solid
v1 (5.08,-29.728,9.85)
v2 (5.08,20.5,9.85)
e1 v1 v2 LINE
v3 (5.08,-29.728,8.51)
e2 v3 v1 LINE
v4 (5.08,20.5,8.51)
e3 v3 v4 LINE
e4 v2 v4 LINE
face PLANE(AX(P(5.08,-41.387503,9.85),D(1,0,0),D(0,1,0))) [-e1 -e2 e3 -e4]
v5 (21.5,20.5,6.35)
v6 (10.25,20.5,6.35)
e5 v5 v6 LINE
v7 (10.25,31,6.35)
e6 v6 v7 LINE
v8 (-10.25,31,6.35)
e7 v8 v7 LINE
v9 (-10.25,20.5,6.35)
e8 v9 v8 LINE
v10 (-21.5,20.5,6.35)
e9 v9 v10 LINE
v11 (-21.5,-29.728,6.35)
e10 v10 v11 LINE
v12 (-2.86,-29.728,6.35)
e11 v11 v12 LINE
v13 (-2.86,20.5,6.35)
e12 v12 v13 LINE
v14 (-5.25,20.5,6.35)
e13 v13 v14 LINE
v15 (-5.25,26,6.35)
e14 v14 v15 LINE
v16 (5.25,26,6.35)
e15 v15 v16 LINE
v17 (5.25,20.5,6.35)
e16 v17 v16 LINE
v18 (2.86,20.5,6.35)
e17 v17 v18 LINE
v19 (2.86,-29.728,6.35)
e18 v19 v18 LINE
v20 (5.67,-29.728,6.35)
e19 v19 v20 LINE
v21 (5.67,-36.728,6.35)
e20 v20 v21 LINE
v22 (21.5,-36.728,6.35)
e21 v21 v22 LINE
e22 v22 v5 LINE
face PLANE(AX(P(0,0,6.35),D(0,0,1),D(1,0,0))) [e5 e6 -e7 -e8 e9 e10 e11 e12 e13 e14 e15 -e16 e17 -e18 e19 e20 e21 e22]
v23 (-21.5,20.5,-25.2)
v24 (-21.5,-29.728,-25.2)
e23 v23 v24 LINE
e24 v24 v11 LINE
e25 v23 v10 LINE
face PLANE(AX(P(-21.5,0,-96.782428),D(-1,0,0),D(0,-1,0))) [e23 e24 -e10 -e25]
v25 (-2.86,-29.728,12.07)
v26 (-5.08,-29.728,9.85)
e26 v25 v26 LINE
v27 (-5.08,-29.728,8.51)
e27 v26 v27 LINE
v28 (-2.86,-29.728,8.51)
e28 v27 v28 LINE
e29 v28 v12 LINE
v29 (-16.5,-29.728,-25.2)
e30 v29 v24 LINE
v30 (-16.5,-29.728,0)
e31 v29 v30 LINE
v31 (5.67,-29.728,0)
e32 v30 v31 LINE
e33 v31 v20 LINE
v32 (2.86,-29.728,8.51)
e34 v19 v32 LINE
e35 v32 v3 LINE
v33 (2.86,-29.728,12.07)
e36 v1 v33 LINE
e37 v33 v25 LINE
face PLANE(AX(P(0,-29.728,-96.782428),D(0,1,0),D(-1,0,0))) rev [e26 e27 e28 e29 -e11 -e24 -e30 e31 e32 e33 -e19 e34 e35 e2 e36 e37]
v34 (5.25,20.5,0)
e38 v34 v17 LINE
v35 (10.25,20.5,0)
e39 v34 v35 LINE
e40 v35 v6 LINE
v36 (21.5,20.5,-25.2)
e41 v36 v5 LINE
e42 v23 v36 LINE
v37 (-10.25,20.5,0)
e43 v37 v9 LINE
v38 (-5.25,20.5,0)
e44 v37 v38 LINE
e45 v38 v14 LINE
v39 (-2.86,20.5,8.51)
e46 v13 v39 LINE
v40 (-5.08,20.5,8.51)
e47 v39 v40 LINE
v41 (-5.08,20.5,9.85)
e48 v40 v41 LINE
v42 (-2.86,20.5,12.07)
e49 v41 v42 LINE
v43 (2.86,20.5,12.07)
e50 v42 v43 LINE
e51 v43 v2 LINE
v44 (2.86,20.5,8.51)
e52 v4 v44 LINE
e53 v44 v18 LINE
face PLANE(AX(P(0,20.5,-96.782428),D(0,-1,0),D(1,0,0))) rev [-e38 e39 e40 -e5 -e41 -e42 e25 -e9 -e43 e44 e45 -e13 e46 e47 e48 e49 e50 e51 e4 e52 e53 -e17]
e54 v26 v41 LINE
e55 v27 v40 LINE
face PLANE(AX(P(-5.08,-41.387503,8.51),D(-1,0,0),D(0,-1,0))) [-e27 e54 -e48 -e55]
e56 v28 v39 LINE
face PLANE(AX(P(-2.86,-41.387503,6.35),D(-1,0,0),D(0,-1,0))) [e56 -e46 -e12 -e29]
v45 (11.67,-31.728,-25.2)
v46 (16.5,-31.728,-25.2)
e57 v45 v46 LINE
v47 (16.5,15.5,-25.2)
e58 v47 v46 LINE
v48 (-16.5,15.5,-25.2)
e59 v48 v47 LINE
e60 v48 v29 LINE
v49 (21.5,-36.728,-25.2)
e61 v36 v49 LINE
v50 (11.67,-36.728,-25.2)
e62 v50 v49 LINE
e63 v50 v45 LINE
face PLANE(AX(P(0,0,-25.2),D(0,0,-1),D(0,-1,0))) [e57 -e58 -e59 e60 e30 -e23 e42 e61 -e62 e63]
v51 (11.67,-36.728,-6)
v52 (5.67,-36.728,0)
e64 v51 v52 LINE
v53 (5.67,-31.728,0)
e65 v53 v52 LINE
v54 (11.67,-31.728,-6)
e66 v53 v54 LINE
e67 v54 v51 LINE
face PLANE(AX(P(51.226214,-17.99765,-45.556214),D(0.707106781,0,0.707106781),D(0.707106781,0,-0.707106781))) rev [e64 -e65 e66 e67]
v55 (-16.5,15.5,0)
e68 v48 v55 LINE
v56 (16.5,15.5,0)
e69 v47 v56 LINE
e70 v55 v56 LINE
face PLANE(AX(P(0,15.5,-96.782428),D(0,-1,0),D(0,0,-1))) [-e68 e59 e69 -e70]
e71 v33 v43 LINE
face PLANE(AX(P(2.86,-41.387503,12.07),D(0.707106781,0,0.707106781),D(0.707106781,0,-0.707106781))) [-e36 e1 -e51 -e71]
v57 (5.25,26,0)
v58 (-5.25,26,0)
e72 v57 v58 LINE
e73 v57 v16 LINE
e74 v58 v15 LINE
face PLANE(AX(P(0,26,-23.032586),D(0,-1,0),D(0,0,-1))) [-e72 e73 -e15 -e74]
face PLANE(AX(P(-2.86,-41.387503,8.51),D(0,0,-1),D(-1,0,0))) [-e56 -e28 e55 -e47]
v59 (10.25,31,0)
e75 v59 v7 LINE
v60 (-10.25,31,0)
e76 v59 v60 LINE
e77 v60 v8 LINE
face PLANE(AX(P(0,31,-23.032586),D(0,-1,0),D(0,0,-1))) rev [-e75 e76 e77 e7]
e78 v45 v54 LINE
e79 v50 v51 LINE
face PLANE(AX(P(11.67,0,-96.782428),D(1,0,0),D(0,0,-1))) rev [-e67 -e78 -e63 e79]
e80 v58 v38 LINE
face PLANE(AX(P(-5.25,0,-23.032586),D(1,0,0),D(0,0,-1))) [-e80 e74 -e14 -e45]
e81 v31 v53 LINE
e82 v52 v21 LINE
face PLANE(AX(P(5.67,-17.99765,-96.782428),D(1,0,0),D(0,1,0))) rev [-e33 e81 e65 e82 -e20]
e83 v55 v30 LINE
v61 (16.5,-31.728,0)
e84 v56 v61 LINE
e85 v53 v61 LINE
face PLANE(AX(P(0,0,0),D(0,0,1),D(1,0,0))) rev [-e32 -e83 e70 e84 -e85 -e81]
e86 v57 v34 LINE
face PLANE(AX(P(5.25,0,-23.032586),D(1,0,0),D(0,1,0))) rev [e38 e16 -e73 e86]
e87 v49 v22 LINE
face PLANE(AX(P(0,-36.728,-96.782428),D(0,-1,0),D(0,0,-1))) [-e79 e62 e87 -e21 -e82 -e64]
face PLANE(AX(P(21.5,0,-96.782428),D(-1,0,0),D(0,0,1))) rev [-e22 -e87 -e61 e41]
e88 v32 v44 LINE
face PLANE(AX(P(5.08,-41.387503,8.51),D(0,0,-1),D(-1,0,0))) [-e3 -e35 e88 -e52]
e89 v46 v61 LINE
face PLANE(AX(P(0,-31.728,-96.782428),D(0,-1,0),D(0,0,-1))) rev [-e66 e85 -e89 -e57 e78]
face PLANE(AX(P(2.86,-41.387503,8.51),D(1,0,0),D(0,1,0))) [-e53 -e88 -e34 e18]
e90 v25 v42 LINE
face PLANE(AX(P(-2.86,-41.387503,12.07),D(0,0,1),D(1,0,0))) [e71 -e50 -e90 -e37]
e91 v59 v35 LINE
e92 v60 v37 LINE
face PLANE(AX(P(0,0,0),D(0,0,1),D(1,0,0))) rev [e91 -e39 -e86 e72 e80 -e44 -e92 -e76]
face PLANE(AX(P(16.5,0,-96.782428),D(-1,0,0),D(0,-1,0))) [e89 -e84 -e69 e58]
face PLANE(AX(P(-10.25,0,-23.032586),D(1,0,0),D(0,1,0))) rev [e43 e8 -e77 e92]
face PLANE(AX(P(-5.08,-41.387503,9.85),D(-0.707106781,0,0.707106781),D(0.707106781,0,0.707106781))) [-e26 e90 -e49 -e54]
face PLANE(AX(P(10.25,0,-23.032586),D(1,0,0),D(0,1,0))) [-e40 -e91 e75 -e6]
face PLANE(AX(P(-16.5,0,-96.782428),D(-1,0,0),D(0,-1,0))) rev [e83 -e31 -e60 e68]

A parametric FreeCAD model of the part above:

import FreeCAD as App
import Part
import Sketcher

V = App.Vector
Q = App.Units.Quantity

doc = App.newDocument("Part")
body = doc.addObject("PartDesign::Body", "Body")

# Sketch on XY plane
sketch1 = body.newObject("Sketcher::SketchObject", "Sketch")
sketch1.AttachmentSupport = (doc.getObject("XY_Plane"), [""])
sketch1.MapMode = "FlatFace"
sketch1.addGeometry([
    Part.LineSegment(V(-16.5, -29.7, 0), V(-16.5, 15.5, 0)),  # 0
    Part.LineSegment(V(-16.5, 15.5, 0), V(16.5, 15.5, 0)),  # 1
    Part.LineSegment(V(16.5, 15.5, 0), V(16.5, -31.7, 0)),  # 2
    Part.LineSegment(V(16.5, -31.7, 0), V(11.7, -31.7, 0)),  # 3
    Part.LineSegment(V(11.7, -31.7, 0), V(11.7, -36.7, 0)),  # 4
    Part.LineSegment(V(11.7, -36.7, 0), V(21.5, -36.7, 0)),  # 5
    Part.LineSegment(V(21.5, -36.7, 0), V(21.5, 20.5, 0)),  # 6
    Part.LineSegment(V(21.5, 20.5, 0), V(-21.5, 20.5, 0)),  # 7
    Part.LineSegment(V(-21.5, 20.5, 0), V(-21.5, -29.7, 0)),  # 8
    Part.LineSegment(V(-21.5, -29.7, 0), V(-16.5, -29.7, 0)),  # 9
], False)
sketch1.addConstraint([
    Sketcher.Constraint("Coincident", 0, 2, 1, 1),
    Sketcher.Constraint("Coincident", 1, 2, 2, 1),
    Sketcher.Constraint("Coincident", 2, 2, 3, 1),
    Sketcher.Constraint("Coincident", 3, 2, 4, 1),
    Sketcher.Constraint("Coincident", 4, 2, 5, 1),
    Sketcher.Constraint("Coincident", 5, 2, 6, 1),
    Sketcher.Constraint("Coincident", 6, 2, 7, 1),
    Sketcher.Constraint("Coincident", 7, 2, 8, 1),
    Sketcher.Constraint("Coincident", 8, 2, 9, 1),
    Sketcher.Constraint("Coincident", 9, 2, 0, 1),
    Sketcher.Constraint("Vertical", 0),
    Sketcher.Constraint("Horizontal", 1),
    Sketcher.Constraint("Vertical", 2),
    Sketcher.Constraint("Horizontal", 3),
    Sketcher.Constraint("Vertical", 4),
    Sketcher.Constraint("Horizontal", 5),
    Sketcher.Constraint("Vertical", 6),
    Sketcher.Constraint("Horizontal", 7),
    Sketcher.Constraint("Vertical", 8),
    Sketcher.Constraint("Horizontal", 9),
    Sketcher.Constraint("Equal", 9, 4),
    Sketcher.Constraint("DistanceX", 1, 1, 1, 2, 33.0),
    Sketcher.Constraint("DistanceX", 7, 2, 7, 1, 43.0),
    Sketcher.Constraint("DistanceX", 9, 1, 9, 2, 5.0),
    Sketcher.Constraint("DistanceY", 1, 2, 6, 2, 5.0),
    Sketcher.Constraint("DistanceY", 3, 2, 8, 2, 2.0),
    Sketcher.Constraint("DistanceX", 3, 2, 3, 1, 4.83),
    Sketcher.Constraint("DistanceX", 0, 2, -1, 1, 16.5),
    Sketcher.Constraint("DistanceY", -1, 1, 0, 2, 15.5),
    Sketcher.Constraint("DistanceY", 0, 1, 0, 2, 45.228),
])
pad1 = body.newObject("PartDesign::Pad", "Pad")
pad1.Profile = sketch1
pad1.Length = 25.2
pad1.Reversed = True

# Sketch on XY plane
sketch2 = body.newObject("Sketcher::SketchObject", "Sketch001")
sketch2.AttachmentSupport = (doc.getObject("XY_Plane"), [""])
sketch2.MapMode = "FlatFace"
sketch2.addGeometry([
    Part.LineSegment(V(22, 20, 0), V(-22, 20, 0)),  # 0
    Part.LineSegment(V(-22, 20, 0), V(-22, -30, 0)),  # 1
    Part.LineSegment(V(-22, -30, 0), V(12, -30, 0)),  # 2
    Part.LineSegment(V(12, -30, 0), V(12, -37, 0)),  # 3
    Part.LineSegment(V(12, -37, 0), V(22, -37, 0)),  # 4
    Part.LineSegment(V(22, -37, 0), V(22, 20, 0)),  # 5
], False)
sketch2.addConstraint([
    Sketcher.Constraint("Coincident", 0, 2, 1, 1),
    Sketcher.Constraint("Coincident", 1, 2, 2, 1),
    Sketcher.Constraint("Coincident", 2, 2, 3, 1),
    Sketcher.Constraint("Coincident", 3, 2, 4, 1),
    Sketcher.Constraint("Coincident", 4, 2, 5, 1),
    Sketcher.Constraint("Coincident", 5, 2, 0, 1),
    Sketcher.Constraint("Horizontal", 0),
    Sketcher.Constraint("Vertical", 1),
    Sketcher.Constraint("Horizontal", 2),
    Sketcher.Constraint("Vertical", 3),
    Sketcher.Constraint("Horizontal", 4),
    Sketcher.Constraint("Vertical", 5),
    Sketcher.Constraint("DistanceX", 0, 2, 0, 1, 43.0),
    Sketcher.Constraint("DistanceY", 3, 2, 3, 1, 7.0),
    Sketcher.Constraint("DistanceX", 2, 1, 2, 2, 33.17),
    Sketcher.Constraint("DistanceX", 0, 2, -1, 1, 21.5),
    Sketcher.Constraint("DistanceY", -1, 1, 0, 2, 20.5),
    Sketcher.Constraint("DistanceY", 1, 2, 1, 1, 50.228),
])
pad2 = body.newObject("PartDesign::Pad", "Pad001")
pad2.Profile = sketch2
pad2.Length = 6.35

# Sketch on XZ plane
sketch3 = body.newObject("Sketcher::SketchObject", "Sketch002")
sketch3.AttachmentSupport = (doc.getObject("XZ_Plane"), [""])
sketch3.MapMode = "FlatFace"
sketch3.AttachmentOffset = App.Placement(V(0, 0, 31.728), App.Rotation())
sketch3.addGeometry([
    Part.LineSegment(V(12, 6, 0), V(6, 6, 0)),
    Part.LineSegment(V(6, 6, 0), V(6, 0, 0)),
    Part.LineSegment(V(6, 0, 0), V(12, -6, 0)),
    Part.LineSegment(V(12, -6, 0), V(12, 6, 0)),
], False)
sketch3.addConstraint([
    Sketcher.Constraint("Coincident", 0, 2, 1, 1),
    Sketcher.Constraint("Coincident", 1, 2, 2, 1),
    Sketcher.Constraint("Coincident", 2, 2, 3, 1),
    Sketcher.Constraint("Coincident", 3, 2, 0, 1),
    Sketcher.Constraint("Horizontal", 0),
    Sketcher.Constraint("Vertical", 1),
    Sketcher.Constraint("Vertical", 3),
    Sketcher.Constraint("PointOnObject", 1, 2, -1),
    Sketcher.Constraint("DistanceX", 0, 2, 0, 1, 6.0),
    Sketcher.Constraint("Angle", 2, Q("-45 deg")),
    Sketcher.Constraint("DistanceY", 1, 2, 1, 1, 6.35),
    Sketcher.Constraint("DistanceX", -1, 1, 0, 2, 5.67),
])
pad3 = body.newObject("PartDesign::Pad", "Pad002")
pad3.Profile = sketch3
pad3.Length = 5

# Sketch on XY plane
sketch4 = body.newObject("Sketcher::SketchObject", "Sketch003")
sketch4.AttachmentSupport = (doc.getObject("XY_Plane"), [""])
sketch4.MapMode = "FlatFace"
sketch4.AttachmentOffset = App.Placement(V(0, 0, 6.35), App.Rotation())
sketch4.addGeometry([
    Part.LineSegment(V(-10.2, 20.5, 0), V(-5.2, 20.5, 0)),  # 0
    Part.LineSegment(V(-5.2, 20.5, 0), V(-5.2, 26, 0)),  # 1
    Part.LineSegment(V(-5.2, 26, 0), V(5.2, 26, 0)),  # 2
    Part.LineSegment(V(5.2, 26, 0), V(5.2, 20.5, 0)),  # 3
    Part.LineSegment(V(5.2, 20.5, 0), V(10.2, 20.5, 0)),  # 4
    Part.LineSegment(V(10.2, 20.5, 0), V(10.2, 31, 0)),  # 5
    Part.LineSegment(V(10.2, 31, 0), V(-10.2, 31, 0)),  # 6
    Part.LineSegment(V(-10.2, 31, 0), V(-10.2, 20.5, 0)),  # 7
    Part.LineSegment(V(5.7, -29.7, 0), V(5.7, -31.7, 0)),  # 8
    Part.LineSegment(V(5.7, -31.7, 0), V(11.7, -31.7, 0)),  # 9
    Part.LineSegment(V(11.7, -31.7, 0), V(11.7, -29.7, 0)),  # 10
    Part.LineSegment(V(11.7, -29.7, 0), V(5.7, -29.7, 0)),  # 11
], False)
sketch4.addConstraint([
    Sketcher.Constraint("Coincident", 0, 2, 1, 1),
    Sketcher.Constraint("Coincident", 1, 2, 2, 1),
    Sketcher.Constraint("Coincident", 2, 2, 3, 1),
    Sketcher.Constraint("Coincident", 3, 2, 4, 1),
    Sketcher.Constraint("Coincident", 4, 2, 5, 1),
    Sketcher.Constraint("Coincident", 5, 2, 6, 1),
    Sketcher.Constraint("Coincident", 6, 2, 7, 1),
    Sketcher.Constraint("Coincident", 7, 2, 0, 1),
    Sketcher.Constraint("Coincident", 8, 2, 9, 1),
    Sketcher.Constraint("Coincident", 9, 2, 10, 1),
    Sketcher.Constraint("Coincident", 10, 2, 11, 1),
    Sketcher.Constraint("Coincident", 11, 2, 8, 1),
    Sketcher.Constraint("Horizontal", 0),
    Sketcher.Constraint("Vertical", 1),
    Sketcher.Constraint("Horizontal", 2),
    Sketcher.Constraint("Vertical", 3),
    Sketcher.Constraint("Horizontal", 4),
    Sketcher.Constraint("Vertical", 5),
    Sketcher.Constraint("Horizontal", 6),
    Sketcher.Constraint("Vertical", 7),
    Sketcher.Constraint("Vertical", 8),
    Sketcher.Constraint("Horizontal", 9),
    Sketcher.Constraint("Vertical", 10),
    Sketcher.Constraint("Horizontal", 11),
    Sketcher.Constraint("Symmetric", 0, 2, 3, 2, -2),
    Sketcher.Constraint("Equal", 0, 4),
    Sketcher.Constraint("Equal", 2, 5),
    Sketcher.Constraint("DistanceX", 0, 1, 0, 2, 5.0),
    Sketcher.Constraint("DistanceX", 9, 1, 9, 2, 6.0),
    Sketcher.Constraint("DistanceY", 8, 2, 8, 1, 2.0),
    Sketcher.Constraint("DistanceX", 2, 1, 2, 2, 10.5),
    Sketcher.Constraint("DistanceY", 1, 1, 1, 2, 5.5),
    Sketcher.Constraint("DistanceY", -1, 1, 1, 2, 26.0),
    Sketcher.Constraint("DistanceX", -1, 1, 8, 2, 5.67),
    Sketcher.Constraint("DistanceY", 8, 2, -1, 1, 31.728),
])
pad4 = body.newObject("PartDesign::Pad", "Pad003")
pad4.Profile = sketch4
pad4.Length = 6.35
pad4.Reversed = True

# Sketch on XZ plane
sketch5 = body.newObject("Sketcher::SketchObject", "Sketch004")
sketch5.AttachmentSupport = (doc.getObject("XZ_Plane"), [""])
sketch5.MapMode = "FlatFace"
sketch5.AttachmentOffset = App.Placement(V(0, 0, -20.5), App.Rotation())
sketch5.addGeometry([
    Part.LineSegment(V(-2.9, 6.3, 0), V(-2.9, 8.5, 0)),  # 0
    Part.LineSegment(V(-2.9, 8.5, 0), V(-5.1, 8.5, 0)),  # 1
    Part.LineSegment(V(-5.1, 8.5, 0), V(-5.1, 9.8, 0)),  # 2
    Part.LineSegment(V(-5.1, 9.8, 0), V(-2.9, 12.1, 0)),  # 3
    Part.LineSegment(V(-2.9, 12.1, 0), V(2.9, 12.1, 0)),  # 4
    Part.LineSegment(V(2.9, 12.1, 0), V(5.1, 9.8, 0)),  # 5
    Part.LineSegment(V(5.1, 9.8, 0), V(5.1, 8.5, 0)),  # 6
    Part.LineSegment(V(5.1, 8.5, 0), V(2.9, 8.5, 0)),  # 7
    Part.LineSegment(V(2.9, 8.5, 0), V(2.9, 6.3, 0)),  # 8
    Part.LineSegment(V(2.9, 6.3, 0), V(-2.9, 6.3, 0)),  # 9
], False)
sketch5.addConstraint([
    Sketcher.Constraint("Coincident", 0, 2, 1, 1),
    Sketcher.Constraint("Coincident", 1, 2, 2, 1),
    Sketcher.Constraint("Coincident", 2, 2, 3, 1),
    Sketcher.Constraint("Coincident", 3, 2, 4, 1),
    Sketcher.Constraint("Coincident", 4, 2, 5, 1),
    Sketcher.Constraint("Coincident", 5, 2, 6, 1),
    Sketcher.Constraint("Coincident", 6, 2, 7, 1),
    Sketcher.Constraint("Coincident", 7, 2, 8, 1),
    Sketcher.Constraint("Coincident", 8, 2, 9, 1),
    Sketcher.Constraint("Coincident", 9, 2, 0, 1),
    Sketcher.Constraint("Vertical", 0),
    Sketcher.Constraint("Horizontal", 1),
    Sketcher.Constraint("Vertical", 2),
    Sketcher.Constraint("Horizontal", 4),
    Sketcher.Constraint("Vertical", 6),
    Sketcher.Constraint("Horizontal", 7),
    Sketcher.Constraint("Vertical", 8),
    Sketcher.Constraint("Horizontal", 9),
    Sketcher.Constraint("Symmetric", 2, 2, 5, 2, -2),
    Sketcher.Constraint("Symmetric", 0, 2, 7, 2, -2),
    Sketcher.Constraint("Perpendicular", 3, 5),
    Sketcher.Constraint("Vertical", 0, 2, 3, 2),
    Sketcher.Constraint("Vertical", 4, 2, 7, 2),
    Sketcher.Constraint("DistanceX", 1, 2, 1, 1, 2.22),
    Sketcher.Constraint("DistanceX", 4, 1, 4, 2, 5.72),
    Sketcher.Constraint("DistanceY", 0, 1, 0, 2, 2.16),
    Sketcher.Constraint("DistanceY", 2, 1, 2, 2, 1.34),
    Sketcher.Constraint("DistanceY", -1, 1, 0, 2, 8.51),
])
pad5 = body.newObject("PartDesign::Pad", "Pad004")
pad5.Profile = sketch5
pad5.Length = 50.228

doc.recompute()
